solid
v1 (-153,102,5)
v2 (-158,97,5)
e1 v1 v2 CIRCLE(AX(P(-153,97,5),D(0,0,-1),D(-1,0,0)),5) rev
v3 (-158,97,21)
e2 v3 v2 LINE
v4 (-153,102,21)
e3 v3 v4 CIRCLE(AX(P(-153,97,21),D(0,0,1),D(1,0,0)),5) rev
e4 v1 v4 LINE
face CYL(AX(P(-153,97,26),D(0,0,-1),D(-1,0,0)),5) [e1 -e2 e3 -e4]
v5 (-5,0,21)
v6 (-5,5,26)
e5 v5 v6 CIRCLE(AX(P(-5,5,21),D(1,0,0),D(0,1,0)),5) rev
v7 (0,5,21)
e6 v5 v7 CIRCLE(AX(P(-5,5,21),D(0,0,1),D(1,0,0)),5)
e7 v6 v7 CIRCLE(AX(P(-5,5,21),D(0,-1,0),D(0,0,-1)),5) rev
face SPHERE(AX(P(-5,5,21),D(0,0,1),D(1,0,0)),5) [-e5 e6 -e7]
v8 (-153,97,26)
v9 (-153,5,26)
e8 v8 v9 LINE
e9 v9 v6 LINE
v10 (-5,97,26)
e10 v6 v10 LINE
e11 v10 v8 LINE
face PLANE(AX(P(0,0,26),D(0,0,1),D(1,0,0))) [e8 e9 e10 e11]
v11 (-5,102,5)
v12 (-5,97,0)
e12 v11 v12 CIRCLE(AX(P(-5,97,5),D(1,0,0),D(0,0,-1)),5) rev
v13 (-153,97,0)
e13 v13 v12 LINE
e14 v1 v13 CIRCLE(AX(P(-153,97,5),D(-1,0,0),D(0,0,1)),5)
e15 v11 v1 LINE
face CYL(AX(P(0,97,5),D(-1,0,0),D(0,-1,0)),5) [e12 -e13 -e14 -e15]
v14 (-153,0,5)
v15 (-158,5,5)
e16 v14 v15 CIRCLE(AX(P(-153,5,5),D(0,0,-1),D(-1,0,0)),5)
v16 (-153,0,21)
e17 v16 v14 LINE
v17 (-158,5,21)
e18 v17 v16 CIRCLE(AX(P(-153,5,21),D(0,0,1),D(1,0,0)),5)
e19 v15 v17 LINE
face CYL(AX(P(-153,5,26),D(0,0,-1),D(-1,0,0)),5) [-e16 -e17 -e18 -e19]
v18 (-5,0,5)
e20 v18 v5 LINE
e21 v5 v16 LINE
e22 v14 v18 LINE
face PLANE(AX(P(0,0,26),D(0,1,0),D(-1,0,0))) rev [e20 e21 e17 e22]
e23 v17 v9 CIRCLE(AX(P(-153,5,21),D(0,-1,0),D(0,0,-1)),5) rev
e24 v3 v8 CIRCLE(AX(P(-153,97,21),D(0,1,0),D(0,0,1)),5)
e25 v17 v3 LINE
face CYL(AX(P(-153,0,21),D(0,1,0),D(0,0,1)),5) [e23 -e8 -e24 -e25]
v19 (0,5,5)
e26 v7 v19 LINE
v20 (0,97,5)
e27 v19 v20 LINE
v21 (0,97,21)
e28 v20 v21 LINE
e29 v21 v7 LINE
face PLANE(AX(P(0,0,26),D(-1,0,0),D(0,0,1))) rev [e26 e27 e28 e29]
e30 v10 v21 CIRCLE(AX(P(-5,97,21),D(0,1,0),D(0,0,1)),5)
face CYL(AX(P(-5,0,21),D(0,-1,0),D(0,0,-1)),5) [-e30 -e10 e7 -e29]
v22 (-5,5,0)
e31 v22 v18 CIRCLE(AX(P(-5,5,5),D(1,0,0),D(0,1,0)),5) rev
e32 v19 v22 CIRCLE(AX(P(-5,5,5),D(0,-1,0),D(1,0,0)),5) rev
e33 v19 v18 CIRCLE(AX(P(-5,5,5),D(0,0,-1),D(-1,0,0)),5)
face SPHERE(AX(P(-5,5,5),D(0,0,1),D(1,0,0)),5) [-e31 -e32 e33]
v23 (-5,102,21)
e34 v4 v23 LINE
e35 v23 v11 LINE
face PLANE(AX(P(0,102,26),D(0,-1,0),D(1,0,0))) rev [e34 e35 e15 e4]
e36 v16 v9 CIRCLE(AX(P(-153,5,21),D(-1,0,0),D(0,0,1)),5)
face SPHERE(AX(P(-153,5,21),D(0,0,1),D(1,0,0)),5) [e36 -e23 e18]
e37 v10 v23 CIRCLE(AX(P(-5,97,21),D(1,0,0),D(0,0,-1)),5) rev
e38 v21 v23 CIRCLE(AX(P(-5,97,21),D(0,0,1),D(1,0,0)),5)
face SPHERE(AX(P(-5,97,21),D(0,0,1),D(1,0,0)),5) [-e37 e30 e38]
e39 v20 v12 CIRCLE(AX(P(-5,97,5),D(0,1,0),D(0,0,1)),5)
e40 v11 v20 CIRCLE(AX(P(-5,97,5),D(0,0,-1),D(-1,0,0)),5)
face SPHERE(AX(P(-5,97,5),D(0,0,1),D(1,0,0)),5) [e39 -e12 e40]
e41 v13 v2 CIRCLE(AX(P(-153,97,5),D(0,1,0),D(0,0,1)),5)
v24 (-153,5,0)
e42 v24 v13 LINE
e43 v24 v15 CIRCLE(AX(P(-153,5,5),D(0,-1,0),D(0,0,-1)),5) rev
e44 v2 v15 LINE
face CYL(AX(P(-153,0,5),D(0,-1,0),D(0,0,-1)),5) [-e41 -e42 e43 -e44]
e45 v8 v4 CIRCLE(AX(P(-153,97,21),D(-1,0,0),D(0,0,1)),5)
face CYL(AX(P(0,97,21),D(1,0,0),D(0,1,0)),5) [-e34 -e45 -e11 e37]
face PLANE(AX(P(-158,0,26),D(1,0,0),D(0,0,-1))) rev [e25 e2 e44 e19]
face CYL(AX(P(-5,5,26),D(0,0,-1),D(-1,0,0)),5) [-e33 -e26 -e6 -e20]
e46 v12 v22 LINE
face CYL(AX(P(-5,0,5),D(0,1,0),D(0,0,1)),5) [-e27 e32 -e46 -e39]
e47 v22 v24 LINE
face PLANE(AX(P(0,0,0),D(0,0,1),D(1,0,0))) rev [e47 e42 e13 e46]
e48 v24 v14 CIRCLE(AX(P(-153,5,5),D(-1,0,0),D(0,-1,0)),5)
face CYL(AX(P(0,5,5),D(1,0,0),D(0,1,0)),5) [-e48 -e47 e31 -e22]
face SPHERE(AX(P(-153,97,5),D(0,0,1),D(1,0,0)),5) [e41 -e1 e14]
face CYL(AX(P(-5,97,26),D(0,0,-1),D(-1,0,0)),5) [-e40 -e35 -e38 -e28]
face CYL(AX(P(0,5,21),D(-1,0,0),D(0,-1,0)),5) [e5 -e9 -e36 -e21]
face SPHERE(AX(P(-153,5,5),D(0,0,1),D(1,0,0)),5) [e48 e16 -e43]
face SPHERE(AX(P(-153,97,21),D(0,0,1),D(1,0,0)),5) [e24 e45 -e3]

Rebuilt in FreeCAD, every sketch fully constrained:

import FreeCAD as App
import Part
import Sketcher
Q = App.Units.Quantity


def add_polygon(sketch, points):
    """Adds a closed chain of lines whose ends are joined by coincident constraints."""
    first, n = sketch.GeometryCount, len(points)
    for a, b in zip(points, points[1:] + points[:1]):
        sketch.addGeometry(Part.LineSegment(App.Vector(*a, 0), App.Vector(*b, 0)), False)
    for i in range(n):
        sketch.addConstraint(Sketcher.Constraint("Coincident", first + i, 2, first + (i + 1) % n, 1))

doc = App.newDocument("Part")
body = doc.addObject("PartDesign::Body", "Body")

# Sketch on XY plane
sketch1 = doc.addObject("Sketcher::SketchObject", "Sketch")
body.addObject(sketch1)
sketch1.AttachmentSupport = (doc.XY_Plane, [""])
sketch1.MapMode = "FlatFace"
add_polygon(sketch1, [(-158, 102), (-158, 0), (0, 0), (0, 102)])  # lines 0-3
sketch1.addConstraint([
    Sketcher.Constraint("Vertical", 0),
    Sketcher.Constraint("Horizontal", 1),
    Sketcher.Constraint("Vertical", 2),
    Sketcher.Constraint("Horizontal", 3),
    Sketcher.Constraint("Coincident", 1, 2, -1, 1),
    Sketcher.Constraint("DistanceX", 1, 1, 1, 2, Q("158 mm")),
    Sketcher.Constraint("DistanceY", 0, 2, 0, 1, Q("102 mm")),
])
pad1 = doc.addObject("PartDesign::Pad", "Pad")
body.addObject(pad1)
pad1.Profile = sketch1
pad1.Length = 26
doc.recompute()

fillet = doc.addObject("PartDesign::Fillet", "Fillet")
body.addObject(fillet)
fillet.Base = (pad1, ["Edge1"])
fillet.UseAllEdges = True
fillet.Radius = 5

doc.recompute()
